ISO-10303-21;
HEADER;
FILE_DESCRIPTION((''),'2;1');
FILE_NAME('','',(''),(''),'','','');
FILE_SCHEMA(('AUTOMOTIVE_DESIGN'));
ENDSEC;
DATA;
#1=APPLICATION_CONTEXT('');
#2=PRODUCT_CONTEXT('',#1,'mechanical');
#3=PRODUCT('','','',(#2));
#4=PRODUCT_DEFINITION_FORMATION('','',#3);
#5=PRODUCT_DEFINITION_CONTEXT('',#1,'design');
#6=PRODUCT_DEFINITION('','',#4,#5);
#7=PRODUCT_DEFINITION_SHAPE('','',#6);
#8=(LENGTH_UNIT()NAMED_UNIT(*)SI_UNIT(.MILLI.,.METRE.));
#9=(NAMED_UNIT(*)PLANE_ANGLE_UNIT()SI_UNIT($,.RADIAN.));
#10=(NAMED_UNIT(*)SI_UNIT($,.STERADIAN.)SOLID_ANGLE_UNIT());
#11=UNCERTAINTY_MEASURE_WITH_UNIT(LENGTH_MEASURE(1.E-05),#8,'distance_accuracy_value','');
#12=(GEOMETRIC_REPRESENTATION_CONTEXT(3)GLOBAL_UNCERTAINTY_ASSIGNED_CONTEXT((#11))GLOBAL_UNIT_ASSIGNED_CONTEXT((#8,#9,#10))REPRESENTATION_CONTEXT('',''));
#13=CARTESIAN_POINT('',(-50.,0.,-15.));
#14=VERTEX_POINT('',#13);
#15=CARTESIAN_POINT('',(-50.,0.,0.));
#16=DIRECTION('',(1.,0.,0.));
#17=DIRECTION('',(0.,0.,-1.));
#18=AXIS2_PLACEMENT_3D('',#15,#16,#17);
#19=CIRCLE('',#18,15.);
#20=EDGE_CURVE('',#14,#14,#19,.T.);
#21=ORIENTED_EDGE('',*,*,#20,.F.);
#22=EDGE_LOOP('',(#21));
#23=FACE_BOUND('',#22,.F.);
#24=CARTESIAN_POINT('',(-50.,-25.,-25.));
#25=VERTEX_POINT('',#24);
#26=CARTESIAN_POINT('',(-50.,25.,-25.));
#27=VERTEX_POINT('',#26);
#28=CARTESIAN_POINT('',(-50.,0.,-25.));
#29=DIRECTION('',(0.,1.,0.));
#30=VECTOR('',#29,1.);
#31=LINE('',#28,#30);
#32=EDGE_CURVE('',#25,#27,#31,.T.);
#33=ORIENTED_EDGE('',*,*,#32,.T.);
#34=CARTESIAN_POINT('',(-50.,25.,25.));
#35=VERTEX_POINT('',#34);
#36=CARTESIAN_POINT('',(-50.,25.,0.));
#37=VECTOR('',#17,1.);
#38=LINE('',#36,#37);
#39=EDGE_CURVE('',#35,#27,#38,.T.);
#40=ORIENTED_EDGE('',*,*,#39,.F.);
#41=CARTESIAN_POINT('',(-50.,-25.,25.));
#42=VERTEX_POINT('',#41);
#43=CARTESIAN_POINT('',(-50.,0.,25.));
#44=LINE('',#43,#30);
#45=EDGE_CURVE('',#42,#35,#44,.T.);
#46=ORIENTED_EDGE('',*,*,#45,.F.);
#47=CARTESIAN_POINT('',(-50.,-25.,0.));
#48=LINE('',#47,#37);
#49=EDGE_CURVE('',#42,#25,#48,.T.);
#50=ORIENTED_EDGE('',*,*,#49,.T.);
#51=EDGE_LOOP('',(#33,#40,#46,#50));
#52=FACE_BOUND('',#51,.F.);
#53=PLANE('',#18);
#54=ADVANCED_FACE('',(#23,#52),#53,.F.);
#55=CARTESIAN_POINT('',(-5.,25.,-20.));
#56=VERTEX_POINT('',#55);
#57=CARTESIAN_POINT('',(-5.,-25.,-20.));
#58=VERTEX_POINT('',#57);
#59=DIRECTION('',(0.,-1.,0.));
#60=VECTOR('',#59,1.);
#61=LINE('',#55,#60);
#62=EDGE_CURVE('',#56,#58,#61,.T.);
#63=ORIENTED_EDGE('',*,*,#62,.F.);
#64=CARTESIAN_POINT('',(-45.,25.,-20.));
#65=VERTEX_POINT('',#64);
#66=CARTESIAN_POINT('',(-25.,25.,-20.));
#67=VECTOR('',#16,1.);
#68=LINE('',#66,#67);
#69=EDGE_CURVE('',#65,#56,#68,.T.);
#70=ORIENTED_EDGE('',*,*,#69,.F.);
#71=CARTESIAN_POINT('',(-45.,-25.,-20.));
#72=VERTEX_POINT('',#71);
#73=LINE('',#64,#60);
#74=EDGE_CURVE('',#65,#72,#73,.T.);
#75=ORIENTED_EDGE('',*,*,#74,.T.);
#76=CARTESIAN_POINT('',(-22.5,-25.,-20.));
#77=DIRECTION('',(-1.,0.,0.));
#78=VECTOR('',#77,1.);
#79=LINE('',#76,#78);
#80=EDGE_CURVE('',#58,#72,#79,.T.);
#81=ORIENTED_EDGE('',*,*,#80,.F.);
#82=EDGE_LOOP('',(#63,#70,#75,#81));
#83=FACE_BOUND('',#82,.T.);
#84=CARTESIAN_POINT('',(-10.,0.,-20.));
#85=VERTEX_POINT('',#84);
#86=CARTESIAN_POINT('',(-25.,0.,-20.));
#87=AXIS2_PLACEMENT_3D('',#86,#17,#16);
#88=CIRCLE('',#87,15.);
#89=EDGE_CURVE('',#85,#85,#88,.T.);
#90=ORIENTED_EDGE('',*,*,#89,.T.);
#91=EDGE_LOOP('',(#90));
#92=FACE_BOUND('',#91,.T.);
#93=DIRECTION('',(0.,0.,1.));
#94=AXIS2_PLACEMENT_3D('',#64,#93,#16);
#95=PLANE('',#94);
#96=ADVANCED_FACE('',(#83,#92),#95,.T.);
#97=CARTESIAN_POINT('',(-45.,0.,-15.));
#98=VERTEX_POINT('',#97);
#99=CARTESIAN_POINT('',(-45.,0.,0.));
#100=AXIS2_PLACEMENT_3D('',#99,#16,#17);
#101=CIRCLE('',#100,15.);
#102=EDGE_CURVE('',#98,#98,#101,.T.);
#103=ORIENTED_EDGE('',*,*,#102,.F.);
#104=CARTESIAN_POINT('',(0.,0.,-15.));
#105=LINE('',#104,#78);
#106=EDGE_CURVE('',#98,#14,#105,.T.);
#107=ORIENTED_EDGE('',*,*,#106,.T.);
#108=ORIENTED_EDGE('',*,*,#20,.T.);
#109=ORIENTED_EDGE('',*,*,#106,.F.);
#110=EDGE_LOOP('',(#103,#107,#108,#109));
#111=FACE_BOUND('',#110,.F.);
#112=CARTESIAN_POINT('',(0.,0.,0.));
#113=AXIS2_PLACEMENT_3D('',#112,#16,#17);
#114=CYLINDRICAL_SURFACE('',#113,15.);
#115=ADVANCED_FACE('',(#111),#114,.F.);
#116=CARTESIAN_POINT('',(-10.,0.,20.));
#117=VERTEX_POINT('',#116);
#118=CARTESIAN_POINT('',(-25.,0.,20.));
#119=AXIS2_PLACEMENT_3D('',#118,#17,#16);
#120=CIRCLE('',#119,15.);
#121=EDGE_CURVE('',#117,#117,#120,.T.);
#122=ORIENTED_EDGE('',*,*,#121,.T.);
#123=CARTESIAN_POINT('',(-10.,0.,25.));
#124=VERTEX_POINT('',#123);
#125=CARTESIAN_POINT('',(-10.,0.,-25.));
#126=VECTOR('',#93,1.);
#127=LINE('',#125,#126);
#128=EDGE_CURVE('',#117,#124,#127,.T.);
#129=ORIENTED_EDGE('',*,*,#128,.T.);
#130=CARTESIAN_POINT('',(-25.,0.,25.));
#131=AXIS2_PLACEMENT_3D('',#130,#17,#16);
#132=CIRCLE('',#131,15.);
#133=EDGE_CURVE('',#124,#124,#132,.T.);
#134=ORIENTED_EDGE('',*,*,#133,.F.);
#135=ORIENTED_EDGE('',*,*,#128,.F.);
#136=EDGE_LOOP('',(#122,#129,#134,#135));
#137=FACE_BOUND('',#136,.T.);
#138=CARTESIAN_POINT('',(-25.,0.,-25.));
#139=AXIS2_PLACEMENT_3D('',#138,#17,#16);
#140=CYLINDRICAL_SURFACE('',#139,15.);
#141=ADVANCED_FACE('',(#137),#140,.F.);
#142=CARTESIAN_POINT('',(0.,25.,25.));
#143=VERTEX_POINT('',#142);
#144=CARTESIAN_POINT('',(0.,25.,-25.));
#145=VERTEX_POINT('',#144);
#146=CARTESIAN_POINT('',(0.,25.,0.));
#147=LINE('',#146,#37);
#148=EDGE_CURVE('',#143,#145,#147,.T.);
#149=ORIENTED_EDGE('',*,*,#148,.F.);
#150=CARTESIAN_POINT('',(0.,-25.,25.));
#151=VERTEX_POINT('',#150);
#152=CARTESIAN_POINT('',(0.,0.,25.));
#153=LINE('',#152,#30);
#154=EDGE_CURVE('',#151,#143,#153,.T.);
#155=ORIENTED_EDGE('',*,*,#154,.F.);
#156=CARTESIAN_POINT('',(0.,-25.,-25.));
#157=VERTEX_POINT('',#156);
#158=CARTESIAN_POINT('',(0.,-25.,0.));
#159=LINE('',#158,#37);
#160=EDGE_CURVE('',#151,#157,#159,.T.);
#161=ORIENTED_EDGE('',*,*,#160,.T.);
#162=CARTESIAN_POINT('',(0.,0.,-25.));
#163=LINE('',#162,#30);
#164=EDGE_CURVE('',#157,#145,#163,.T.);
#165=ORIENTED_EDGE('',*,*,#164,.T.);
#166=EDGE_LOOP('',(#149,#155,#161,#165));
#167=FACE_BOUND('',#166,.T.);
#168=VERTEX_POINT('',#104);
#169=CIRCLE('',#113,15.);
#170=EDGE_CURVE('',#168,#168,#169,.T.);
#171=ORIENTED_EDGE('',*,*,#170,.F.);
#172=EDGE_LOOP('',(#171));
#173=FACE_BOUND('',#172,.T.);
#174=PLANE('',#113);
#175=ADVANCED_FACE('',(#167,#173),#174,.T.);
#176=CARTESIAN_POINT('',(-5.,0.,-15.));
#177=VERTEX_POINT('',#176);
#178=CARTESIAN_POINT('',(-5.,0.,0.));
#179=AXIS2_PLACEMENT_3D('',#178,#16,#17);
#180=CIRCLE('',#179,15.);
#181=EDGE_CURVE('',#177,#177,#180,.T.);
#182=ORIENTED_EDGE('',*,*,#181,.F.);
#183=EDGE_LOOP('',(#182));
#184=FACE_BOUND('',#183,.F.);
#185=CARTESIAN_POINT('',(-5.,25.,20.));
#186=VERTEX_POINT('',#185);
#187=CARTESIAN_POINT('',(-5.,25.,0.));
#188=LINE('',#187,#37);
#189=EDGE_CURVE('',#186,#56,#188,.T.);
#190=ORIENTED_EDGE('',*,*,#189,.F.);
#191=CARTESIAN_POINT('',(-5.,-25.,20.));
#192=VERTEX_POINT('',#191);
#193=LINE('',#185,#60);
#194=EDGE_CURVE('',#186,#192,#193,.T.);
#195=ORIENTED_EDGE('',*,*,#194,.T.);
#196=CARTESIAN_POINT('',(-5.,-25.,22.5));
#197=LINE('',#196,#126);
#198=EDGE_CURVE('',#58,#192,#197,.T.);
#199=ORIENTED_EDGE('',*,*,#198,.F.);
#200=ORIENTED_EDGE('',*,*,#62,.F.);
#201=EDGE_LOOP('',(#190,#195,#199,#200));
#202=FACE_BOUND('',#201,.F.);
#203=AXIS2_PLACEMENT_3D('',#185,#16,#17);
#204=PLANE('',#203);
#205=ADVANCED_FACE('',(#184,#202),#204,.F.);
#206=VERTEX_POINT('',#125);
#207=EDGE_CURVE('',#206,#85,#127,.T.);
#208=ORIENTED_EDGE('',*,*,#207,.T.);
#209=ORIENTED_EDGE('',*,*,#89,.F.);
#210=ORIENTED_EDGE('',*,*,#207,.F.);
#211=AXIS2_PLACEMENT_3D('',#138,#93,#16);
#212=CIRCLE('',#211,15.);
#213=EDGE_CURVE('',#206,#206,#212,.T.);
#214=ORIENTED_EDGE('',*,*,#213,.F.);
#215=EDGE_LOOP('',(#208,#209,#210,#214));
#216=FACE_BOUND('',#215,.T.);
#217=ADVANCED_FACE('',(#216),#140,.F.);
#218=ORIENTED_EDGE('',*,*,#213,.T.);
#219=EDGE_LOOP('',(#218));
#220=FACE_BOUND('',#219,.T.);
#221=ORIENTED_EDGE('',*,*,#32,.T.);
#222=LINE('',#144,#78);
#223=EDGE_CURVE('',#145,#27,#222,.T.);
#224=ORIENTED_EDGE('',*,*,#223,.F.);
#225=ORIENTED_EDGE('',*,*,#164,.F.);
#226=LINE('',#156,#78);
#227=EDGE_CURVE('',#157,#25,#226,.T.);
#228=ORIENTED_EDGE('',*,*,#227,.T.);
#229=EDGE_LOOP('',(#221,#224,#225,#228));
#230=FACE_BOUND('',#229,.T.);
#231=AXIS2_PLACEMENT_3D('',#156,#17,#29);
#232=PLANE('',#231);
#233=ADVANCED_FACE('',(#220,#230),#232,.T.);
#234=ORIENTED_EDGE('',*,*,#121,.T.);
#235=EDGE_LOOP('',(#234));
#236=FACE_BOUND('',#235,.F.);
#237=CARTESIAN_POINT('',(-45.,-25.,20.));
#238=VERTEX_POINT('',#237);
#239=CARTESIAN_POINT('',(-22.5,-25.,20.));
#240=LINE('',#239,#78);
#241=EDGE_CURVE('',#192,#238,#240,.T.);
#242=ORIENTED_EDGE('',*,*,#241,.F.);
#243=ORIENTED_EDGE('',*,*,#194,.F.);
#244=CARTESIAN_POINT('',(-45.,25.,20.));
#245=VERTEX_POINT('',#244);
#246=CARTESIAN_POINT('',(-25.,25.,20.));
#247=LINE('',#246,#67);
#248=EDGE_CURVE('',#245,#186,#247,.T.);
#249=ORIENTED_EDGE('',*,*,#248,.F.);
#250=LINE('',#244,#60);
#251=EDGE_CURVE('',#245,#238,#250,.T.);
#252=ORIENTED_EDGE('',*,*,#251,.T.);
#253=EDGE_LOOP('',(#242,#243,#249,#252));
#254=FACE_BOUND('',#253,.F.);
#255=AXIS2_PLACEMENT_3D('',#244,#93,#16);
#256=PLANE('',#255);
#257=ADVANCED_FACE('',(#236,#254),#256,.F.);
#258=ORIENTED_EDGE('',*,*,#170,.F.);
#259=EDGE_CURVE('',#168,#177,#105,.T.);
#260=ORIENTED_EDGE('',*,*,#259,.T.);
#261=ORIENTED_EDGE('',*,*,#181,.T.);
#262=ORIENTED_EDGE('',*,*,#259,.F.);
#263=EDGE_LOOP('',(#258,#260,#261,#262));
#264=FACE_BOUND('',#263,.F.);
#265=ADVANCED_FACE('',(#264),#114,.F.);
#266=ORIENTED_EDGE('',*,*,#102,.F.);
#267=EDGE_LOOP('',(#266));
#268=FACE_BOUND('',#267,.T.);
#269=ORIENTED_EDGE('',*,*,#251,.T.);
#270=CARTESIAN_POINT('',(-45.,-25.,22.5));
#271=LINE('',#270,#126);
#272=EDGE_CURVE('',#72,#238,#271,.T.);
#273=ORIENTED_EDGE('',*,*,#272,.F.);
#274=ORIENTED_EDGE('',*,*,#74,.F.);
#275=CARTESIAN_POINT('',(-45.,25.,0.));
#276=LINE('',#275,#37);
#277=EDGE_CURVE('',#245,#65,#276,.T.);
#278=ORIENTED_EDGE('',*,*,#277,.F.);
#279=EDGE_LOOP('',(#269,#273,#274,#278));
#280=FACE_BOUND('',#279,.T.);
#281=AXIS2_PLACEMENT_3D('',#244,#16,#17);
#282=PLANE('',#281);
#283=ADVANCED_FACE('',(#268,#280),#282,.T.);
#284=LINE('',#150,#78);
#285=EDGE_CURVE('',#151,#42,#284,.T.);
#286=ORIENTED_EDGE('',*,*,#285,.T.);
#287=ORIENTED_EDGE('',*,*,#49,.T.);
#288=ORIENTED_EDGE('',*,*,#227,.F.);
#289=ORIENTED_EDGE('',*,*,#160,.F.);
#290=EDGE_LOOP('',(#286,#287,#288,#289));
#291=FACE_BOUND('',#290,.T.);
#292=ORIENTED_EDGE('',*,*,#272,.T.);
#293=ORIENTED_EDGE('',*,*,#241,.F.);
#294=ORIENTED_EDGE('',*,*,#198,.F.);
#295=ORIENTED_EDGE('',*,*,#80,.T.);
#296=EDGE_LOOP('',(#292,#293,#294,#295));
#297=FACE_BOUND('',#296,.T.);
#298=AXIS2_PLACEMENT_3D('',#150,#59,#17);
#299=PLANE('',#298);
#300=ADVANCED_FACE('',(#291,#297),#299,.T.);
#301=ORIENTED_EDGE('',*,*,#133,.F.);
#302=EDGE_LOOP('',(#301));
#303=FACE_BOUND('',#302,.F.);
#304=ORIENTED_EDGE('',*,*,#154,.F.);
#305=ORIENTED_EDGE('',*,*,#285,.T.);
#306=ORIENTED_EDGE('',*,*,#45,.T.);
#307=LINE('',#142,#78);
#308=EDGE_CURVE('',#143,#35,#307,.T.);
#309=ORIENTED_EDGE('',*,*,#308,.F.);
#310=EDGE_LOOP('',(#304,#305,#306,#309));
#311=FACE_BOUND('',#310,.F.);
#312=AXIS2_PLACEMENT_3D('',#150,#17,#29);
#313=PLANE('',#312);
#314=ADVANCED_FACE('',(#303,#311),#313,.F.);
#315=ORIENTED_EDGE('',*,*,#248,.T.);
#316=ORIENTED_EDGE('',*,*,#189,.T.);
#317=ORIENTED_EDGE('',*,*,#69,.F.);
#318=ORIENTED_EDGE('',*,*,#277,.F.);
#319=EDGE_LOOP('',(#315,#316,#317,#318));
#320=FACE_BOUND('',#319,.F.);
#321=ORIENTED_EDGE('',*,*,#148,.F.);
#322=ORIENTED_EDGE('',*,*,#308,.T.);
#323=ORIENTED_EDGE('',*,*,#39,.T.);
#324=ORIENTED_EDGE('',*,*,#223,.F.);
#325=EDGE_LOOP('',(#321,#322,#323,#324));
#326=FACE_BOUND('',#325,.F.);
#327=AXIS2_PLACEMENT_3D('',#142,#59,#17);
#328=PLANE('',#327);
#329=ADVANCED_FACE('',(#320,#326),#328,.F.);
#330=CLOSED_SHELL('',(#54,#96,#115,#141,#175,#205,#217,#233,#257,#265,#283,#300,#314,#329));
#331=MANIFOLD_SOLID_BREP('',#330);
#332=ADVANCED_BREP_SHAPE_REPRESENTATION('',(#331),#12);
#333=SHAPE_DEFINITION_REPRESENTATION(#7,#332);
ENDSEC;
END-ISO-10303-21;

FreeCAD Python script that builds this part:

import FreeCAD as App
import Part
import Sketcher


def add_polygon(sketch, points):
    """Adds a closed chain of lines whose ends are joined by coincident constraints."""
    first, n = sketch.GeometryCount, len(points)
    for a, b in zip(points, points[1:] + points[:1]):
        sketch.addGeometry(Part.LineSegment(App.Vector(*a, 0), App.Vector(*b, 0)), False)
    for i in range(n):
        sketch.addConstraint(Sketcher.Constraint("Coincident", first + i, 2, first + (i + 1) % n, 1))

doc = App.newDocument("Part")
body = doc.addObject("PartDesign::Body", "Body")

# Sketch on YZ plane
sketch1 = doc.addObject("Sketcher::SketchObject", "Sketch")
body.addObject(sketch1)
sketch1.AttachmentSupport = (doc.YZ_Plane, [""])
sketch1.MapMode = "FlatFace"
add_polygon(sketch1, [(25, 25), (-25, 25), (-25, -25), (25, -25)])  # lines 0-3
sketch1.addConstraint(Sketcher.Constraint("Horizontal", 0))
sketch1.addConstraint(Sketcher.Constraint("Vertical", 1))
sketch1.addConstraint(Sketcher.Constraint("Horizontal", 2))
sketch1.addConstraint(Sketcher.Constraint("Vertical", 3))
sketch1.addConstraint(Sketcher.Constraint("Symmetric", 0, 2, 2, 2, -1, 1))
sketch1.addConstraint(Sketcher.Constraint("Equal", 2, 1))
sketch1.addConstraint(Sketcher.Constraint("DistanceX", 0, 2, 0, 1, 50.0))
pad1 = doc.addObject("PartDesign::Pad", "Pad")
body.addObject(pad1)
pad1.Profile = sketch1
pad1.Length = 50
pad1.Reversed = True

# Sketch on XZ plane
sketch2 = doc.addObject("Sketcher::SketchObject", "Sketch001")
body.addObject(sketch2)
sketch2.AttachmentSupport = (doc.XZ_Plane, [""])
sketch2.MapMode = "FlatFace"
sketch2.AttachmentOffset = App.Placement(App.Vector(0, 0, -25), App.Rotation())
add_polygon(sketch2, [(-45, -20), (-45, 20), (-5, 20), (-5, -20)])  # lines 0-3
sketch2.addConstraint(Sketcher.Constraint("Vertical", 0))
sketch2.addConstraint(Sketcher.Constraint("Horizontal", 1))
sketch2.addConstraint(Sketcher.Constraint("Vertical", 2))
sketch2.addConstraint(Sketcher.Constraint("Horizontal", 3))
sketch2.addConstraint(Sketcher.Constraint("Equal", 3, 0))
sketch2.addConstraint(Sketcher.Constraint("DistanceX", 1, 1, 1, 2, 40.0))
sketch2.addConstraint(Sketcher.Constraint("DistanceX", 0, 2, -1, 1, 45.0))
sketch2.addConstraint(Sketcher.Constraint("DistanceY", -1, 1, 0, 2, 20.0))
pocket1 = doc.addObject("PartDesign::Pocket", "Pocket")
body.addObject(pocket1)
pocket1.Profile = sketch2
pocket1.Type = "ThroughAll"
pocket1.Reversed = True

# Sketch on YZ plane
sketch3 = doc.addObject("Sketcher::SketchObject", "Sketch002")
body.addObject(sketch3)
sketch3.AttachmentSupport = (doc.YZ_Plane, [""])
sketch3.MapMode = "FlatFace"
sketch3.addGeometry(Part.Circle(App.Vector(0, 0, 0), App.Vector(0, 0, 1), 15), False)
sketch3.addConstraint(Sketcher.Constraint("Coincident", 0, 3, -1, 1))
sketch3.addConstraint(Sketcher.Constraint("Diameter", 0, 30.0))
pocket2 = doc.addObject("PartDesign::Pocket", "Pocket001")
body.addObject(pocket2)
pocket2.Profile = sketch3
pocket2.Type = "ThroughAll"
doc.recompute()

datumplane = doc.addObject("PartDesign::Plane", "DatumPlane")
body.addObject(datumplane)
datumplane.Placement = App.Placement(App.Vector(-12.5, 0, -12.5), App.Rotation(App.Vector(-0.707106781, 0, 0.707106781), App.Vector(0, -1, 0), App.Vector(0.707106781, 0, 0.707106781), "ZXY"))
mirrored = doc.addObject("PartDesign::Mirrored", "Mirrored")
body.addObject(mirrored)
mirrored.Originals = [pocket2]
mirrored.MirrorPlane = (datumplane, [""])
body.Tip = mirrored

doc.recompute()
